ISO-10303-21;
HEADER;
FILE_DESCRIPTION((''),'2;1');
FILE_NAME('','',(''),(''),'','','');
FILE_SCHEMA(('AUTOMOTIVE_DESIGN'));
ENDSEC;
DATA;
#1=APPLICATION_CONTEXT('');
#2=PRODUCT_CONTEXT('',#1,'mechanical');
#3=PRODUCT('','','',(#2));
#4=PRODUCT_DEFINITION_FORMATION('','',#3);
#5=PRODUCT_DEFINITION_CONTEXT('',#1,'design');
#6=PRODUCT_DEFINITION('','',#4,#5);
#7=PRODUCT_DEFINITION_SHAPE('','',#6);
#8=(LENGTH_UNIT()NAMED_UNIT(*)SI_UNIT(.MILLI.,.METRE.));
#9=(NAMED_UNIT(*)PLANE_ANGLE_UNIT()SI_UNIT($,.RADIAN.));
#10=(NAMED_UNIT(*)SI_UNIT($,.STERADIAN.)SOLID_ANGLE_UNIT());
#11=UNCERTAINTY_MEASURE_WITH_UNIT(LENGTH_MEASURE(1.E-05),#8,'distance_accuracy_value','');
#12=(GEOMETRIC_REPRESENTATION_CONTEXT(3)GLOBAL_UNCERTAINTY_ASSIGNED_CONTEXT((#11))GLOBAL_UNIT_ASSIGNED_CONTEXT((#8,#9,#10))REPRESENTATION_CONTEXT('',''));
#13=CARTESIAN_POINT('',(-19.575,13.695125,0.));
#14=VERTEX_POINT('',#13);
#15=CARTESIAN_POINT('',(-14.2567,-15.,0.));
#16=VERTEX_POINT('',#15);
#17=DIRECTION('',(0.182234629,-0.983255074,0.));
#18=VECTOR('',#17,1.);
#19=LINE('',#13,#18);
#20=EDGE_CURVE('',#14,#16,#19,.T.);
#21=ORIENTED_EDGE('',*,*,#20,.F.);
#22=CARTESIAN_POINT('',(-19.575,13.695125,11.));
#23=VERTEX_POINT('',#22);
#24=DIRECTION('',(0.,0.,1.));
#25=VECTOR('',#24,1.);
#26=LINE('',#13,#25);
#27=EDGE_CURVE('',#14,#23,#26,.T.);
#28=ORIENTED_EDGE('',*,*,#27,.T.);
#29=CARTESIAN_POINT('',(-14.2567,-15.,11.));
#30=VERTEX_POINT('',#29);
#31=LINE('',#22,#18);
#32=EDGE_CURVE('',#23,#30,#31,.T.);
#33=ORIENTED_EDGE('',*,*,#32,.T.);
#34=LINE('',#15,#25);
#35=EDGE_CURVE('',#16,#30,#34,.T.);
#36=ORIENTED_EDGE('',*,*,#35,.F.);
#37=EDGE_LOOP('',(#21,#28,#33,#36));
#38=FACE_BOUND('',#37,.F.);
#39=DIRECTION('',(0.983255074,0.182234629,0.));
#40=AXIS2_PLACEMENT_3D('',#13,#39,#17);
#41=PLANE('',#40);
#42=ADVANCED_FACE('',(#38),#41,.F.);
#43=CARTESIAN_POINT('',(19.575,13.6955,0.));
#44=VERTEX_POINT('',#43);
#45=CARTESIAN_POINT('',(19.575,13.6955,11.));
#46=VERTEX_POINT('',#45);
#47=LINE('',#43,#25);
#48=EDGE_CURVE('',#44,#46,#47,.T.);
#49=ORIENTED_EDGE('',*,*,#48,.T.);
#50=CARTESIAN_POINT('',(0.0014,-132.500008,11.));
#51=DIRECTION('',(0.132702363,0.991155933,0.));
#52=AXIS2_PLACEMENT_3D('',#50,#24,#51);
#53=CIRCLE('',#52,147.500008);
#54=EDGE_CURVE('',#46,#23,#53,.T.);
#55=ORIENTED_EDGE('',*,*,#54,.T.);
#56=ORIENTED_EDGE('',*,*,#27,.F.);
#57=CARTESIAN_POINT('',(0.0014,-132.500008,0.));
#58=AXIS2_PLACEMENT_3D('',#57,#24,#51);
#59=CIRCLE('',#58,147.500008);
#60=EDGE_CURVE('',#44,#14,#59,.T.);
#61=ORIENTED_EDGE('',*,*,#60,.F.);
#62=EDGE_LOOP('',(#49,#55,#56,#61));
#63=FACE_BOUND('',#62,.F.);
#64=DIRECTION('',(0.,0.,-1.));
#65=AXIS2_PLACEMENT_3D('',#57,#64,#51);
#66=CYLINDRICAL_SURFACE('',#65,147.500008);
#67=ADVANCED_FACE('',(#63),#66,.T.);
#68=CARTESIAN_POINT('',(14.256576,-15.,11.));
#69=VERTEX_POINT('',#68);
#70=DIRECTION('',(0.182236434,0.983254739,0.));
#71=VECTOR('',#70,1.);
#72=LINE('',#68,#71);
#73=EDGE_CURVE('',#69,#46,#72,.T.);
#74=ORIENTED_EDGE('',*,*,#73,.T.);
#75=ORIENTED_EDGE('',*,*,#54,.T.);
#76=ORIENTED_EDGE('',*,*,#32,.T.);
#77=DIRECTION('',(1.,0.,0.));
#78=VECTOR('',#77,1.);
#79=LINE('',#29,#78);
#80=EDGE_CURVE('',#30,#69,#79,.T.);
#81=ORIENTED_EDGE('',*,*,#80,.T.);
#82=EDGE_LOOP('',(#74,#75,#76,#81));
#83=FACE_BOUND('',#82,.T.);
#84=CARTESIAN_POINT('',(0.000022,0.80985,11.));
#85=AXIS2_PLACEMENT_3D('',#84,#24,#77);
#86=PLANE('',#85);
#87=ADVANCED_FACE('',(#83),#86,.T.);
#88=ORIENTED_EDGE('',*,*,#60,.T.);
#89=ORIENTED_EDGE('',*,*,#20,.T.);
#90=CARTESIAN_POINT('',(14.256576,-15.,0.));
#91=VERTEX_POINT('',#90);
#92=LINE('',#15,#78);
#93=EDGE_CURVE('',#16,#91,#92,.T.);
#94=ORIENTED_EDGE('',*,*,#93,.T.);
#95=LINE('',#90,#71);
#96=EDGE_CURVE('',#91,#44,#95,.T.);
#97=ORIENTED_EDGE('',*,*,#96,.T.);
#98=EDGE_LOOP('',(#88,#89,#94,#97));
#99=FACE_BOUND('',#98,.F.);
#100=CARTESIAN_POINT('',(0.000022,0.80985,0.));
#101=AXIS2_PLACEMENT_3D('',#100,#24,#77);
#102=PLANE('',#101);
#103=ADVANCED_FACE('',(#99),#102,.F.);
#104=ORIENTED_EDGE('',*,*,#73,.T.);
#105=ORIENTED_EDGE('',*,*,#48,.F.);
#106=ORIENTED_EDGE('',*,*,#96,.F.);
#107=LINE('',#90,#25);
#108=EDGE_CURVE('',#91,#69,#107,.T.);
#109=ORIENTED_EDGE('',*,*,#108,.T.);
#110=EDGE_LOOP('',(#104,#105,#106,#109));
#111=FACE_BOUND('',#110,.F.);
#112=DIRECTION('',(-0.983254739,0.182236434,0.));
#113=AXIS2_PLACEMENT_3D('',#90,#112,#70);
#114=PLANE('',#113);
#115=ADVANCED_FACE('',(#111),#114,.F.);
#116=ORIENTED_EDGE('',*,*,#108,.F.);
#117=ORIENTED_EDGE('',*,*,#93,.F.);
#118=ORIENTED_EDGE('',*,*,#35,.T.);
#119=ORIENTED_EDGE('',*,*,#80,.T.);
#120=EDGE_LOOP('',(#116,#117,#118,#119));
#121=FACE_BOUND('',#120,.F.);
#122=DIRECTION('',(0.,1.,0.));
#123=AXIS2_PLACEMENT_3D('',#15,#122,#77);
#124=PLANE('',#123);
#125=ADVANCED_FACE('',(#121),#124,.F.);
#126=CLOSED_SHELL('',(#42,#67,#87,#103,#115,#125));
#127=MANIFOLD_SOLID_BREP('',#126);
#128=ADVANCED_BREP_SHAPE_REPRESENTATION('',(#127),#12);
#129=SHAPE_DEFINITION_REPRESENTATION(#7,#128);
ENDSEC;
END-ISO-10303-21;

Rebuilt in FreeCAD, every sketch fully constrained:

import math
import FreeCAD as App
import Part
import Sketcher
from FreeCAD import Vector

doc = App.newDocument("Part")
body = doc.addObject("PartDesign::Body", "Body")

sketch1 = body.newObject("Sketcher::SketchObject", "Sketch")
sketch1.AttachmentSupport = (doc.getObject("XY_Plane"), [""])
sketch1.MapMode = "FlatFace"
sketch1.addGeometry([
    Part.LineSegment(Vector(-14, -15, 0), Vector(14, -15, 0)),
    Part.LineSegment(Vector(14, -15, 0), Vector(20, 14, 0)),
    Part.ArcOfCircle(Part.Circle(Vector(0, -133, 0), Vector(0, 0, 1), 148), math.radians(82.37), math.radians(97.63)),
    Part.LineSegment(Vector(-20, 14, 0), Vector(-14, -15, 0)),
], False)
sketch1.addConstraint([
    Sketcher.Constraint("Coincident", 0, 2, 1, 1),
    Sketcher.Constraint("Coincident", 1, 2, 2, 1),
    Sketcher.Constraint("Coincident", 2, 2, 3, 1),
    Sketcher.Constraint("Coincident", 3, 2, 0, 1),
    Sketcher.Constraint("Horizontal", 0),
    Sketcher.Constraint("DistanceY", 0, 2, -1, 1, 15.0),
    Sketcher.Constraint("Radius", 2, 147.500008),
    Sketcher.Constraint("DistanceX", 2, 2, 1, 2, 39.15),
    Sketcher.Constraint("DistanceX", -1, 1, 1, 2, 19.575),
    Sketcher.Constraint("DistanceX", -1, 1, 2, 3, 0.0014),
    Sketcher.Constraint("DistanceY", -1, 1, 1, 2, 13.6955),
    Sketcher.Constraint("DistanceX", 3, 2, -1, 1, 14.2567),
    Sketcher.Constraint("DistanceX", 0, 1, 0, 2, 28.513276),
])
pad1 = body.newObject("PartDesign::Pad", "Pad")
pad1.Profile = sketch1
pad1.Length = 11

doc.recompute()
